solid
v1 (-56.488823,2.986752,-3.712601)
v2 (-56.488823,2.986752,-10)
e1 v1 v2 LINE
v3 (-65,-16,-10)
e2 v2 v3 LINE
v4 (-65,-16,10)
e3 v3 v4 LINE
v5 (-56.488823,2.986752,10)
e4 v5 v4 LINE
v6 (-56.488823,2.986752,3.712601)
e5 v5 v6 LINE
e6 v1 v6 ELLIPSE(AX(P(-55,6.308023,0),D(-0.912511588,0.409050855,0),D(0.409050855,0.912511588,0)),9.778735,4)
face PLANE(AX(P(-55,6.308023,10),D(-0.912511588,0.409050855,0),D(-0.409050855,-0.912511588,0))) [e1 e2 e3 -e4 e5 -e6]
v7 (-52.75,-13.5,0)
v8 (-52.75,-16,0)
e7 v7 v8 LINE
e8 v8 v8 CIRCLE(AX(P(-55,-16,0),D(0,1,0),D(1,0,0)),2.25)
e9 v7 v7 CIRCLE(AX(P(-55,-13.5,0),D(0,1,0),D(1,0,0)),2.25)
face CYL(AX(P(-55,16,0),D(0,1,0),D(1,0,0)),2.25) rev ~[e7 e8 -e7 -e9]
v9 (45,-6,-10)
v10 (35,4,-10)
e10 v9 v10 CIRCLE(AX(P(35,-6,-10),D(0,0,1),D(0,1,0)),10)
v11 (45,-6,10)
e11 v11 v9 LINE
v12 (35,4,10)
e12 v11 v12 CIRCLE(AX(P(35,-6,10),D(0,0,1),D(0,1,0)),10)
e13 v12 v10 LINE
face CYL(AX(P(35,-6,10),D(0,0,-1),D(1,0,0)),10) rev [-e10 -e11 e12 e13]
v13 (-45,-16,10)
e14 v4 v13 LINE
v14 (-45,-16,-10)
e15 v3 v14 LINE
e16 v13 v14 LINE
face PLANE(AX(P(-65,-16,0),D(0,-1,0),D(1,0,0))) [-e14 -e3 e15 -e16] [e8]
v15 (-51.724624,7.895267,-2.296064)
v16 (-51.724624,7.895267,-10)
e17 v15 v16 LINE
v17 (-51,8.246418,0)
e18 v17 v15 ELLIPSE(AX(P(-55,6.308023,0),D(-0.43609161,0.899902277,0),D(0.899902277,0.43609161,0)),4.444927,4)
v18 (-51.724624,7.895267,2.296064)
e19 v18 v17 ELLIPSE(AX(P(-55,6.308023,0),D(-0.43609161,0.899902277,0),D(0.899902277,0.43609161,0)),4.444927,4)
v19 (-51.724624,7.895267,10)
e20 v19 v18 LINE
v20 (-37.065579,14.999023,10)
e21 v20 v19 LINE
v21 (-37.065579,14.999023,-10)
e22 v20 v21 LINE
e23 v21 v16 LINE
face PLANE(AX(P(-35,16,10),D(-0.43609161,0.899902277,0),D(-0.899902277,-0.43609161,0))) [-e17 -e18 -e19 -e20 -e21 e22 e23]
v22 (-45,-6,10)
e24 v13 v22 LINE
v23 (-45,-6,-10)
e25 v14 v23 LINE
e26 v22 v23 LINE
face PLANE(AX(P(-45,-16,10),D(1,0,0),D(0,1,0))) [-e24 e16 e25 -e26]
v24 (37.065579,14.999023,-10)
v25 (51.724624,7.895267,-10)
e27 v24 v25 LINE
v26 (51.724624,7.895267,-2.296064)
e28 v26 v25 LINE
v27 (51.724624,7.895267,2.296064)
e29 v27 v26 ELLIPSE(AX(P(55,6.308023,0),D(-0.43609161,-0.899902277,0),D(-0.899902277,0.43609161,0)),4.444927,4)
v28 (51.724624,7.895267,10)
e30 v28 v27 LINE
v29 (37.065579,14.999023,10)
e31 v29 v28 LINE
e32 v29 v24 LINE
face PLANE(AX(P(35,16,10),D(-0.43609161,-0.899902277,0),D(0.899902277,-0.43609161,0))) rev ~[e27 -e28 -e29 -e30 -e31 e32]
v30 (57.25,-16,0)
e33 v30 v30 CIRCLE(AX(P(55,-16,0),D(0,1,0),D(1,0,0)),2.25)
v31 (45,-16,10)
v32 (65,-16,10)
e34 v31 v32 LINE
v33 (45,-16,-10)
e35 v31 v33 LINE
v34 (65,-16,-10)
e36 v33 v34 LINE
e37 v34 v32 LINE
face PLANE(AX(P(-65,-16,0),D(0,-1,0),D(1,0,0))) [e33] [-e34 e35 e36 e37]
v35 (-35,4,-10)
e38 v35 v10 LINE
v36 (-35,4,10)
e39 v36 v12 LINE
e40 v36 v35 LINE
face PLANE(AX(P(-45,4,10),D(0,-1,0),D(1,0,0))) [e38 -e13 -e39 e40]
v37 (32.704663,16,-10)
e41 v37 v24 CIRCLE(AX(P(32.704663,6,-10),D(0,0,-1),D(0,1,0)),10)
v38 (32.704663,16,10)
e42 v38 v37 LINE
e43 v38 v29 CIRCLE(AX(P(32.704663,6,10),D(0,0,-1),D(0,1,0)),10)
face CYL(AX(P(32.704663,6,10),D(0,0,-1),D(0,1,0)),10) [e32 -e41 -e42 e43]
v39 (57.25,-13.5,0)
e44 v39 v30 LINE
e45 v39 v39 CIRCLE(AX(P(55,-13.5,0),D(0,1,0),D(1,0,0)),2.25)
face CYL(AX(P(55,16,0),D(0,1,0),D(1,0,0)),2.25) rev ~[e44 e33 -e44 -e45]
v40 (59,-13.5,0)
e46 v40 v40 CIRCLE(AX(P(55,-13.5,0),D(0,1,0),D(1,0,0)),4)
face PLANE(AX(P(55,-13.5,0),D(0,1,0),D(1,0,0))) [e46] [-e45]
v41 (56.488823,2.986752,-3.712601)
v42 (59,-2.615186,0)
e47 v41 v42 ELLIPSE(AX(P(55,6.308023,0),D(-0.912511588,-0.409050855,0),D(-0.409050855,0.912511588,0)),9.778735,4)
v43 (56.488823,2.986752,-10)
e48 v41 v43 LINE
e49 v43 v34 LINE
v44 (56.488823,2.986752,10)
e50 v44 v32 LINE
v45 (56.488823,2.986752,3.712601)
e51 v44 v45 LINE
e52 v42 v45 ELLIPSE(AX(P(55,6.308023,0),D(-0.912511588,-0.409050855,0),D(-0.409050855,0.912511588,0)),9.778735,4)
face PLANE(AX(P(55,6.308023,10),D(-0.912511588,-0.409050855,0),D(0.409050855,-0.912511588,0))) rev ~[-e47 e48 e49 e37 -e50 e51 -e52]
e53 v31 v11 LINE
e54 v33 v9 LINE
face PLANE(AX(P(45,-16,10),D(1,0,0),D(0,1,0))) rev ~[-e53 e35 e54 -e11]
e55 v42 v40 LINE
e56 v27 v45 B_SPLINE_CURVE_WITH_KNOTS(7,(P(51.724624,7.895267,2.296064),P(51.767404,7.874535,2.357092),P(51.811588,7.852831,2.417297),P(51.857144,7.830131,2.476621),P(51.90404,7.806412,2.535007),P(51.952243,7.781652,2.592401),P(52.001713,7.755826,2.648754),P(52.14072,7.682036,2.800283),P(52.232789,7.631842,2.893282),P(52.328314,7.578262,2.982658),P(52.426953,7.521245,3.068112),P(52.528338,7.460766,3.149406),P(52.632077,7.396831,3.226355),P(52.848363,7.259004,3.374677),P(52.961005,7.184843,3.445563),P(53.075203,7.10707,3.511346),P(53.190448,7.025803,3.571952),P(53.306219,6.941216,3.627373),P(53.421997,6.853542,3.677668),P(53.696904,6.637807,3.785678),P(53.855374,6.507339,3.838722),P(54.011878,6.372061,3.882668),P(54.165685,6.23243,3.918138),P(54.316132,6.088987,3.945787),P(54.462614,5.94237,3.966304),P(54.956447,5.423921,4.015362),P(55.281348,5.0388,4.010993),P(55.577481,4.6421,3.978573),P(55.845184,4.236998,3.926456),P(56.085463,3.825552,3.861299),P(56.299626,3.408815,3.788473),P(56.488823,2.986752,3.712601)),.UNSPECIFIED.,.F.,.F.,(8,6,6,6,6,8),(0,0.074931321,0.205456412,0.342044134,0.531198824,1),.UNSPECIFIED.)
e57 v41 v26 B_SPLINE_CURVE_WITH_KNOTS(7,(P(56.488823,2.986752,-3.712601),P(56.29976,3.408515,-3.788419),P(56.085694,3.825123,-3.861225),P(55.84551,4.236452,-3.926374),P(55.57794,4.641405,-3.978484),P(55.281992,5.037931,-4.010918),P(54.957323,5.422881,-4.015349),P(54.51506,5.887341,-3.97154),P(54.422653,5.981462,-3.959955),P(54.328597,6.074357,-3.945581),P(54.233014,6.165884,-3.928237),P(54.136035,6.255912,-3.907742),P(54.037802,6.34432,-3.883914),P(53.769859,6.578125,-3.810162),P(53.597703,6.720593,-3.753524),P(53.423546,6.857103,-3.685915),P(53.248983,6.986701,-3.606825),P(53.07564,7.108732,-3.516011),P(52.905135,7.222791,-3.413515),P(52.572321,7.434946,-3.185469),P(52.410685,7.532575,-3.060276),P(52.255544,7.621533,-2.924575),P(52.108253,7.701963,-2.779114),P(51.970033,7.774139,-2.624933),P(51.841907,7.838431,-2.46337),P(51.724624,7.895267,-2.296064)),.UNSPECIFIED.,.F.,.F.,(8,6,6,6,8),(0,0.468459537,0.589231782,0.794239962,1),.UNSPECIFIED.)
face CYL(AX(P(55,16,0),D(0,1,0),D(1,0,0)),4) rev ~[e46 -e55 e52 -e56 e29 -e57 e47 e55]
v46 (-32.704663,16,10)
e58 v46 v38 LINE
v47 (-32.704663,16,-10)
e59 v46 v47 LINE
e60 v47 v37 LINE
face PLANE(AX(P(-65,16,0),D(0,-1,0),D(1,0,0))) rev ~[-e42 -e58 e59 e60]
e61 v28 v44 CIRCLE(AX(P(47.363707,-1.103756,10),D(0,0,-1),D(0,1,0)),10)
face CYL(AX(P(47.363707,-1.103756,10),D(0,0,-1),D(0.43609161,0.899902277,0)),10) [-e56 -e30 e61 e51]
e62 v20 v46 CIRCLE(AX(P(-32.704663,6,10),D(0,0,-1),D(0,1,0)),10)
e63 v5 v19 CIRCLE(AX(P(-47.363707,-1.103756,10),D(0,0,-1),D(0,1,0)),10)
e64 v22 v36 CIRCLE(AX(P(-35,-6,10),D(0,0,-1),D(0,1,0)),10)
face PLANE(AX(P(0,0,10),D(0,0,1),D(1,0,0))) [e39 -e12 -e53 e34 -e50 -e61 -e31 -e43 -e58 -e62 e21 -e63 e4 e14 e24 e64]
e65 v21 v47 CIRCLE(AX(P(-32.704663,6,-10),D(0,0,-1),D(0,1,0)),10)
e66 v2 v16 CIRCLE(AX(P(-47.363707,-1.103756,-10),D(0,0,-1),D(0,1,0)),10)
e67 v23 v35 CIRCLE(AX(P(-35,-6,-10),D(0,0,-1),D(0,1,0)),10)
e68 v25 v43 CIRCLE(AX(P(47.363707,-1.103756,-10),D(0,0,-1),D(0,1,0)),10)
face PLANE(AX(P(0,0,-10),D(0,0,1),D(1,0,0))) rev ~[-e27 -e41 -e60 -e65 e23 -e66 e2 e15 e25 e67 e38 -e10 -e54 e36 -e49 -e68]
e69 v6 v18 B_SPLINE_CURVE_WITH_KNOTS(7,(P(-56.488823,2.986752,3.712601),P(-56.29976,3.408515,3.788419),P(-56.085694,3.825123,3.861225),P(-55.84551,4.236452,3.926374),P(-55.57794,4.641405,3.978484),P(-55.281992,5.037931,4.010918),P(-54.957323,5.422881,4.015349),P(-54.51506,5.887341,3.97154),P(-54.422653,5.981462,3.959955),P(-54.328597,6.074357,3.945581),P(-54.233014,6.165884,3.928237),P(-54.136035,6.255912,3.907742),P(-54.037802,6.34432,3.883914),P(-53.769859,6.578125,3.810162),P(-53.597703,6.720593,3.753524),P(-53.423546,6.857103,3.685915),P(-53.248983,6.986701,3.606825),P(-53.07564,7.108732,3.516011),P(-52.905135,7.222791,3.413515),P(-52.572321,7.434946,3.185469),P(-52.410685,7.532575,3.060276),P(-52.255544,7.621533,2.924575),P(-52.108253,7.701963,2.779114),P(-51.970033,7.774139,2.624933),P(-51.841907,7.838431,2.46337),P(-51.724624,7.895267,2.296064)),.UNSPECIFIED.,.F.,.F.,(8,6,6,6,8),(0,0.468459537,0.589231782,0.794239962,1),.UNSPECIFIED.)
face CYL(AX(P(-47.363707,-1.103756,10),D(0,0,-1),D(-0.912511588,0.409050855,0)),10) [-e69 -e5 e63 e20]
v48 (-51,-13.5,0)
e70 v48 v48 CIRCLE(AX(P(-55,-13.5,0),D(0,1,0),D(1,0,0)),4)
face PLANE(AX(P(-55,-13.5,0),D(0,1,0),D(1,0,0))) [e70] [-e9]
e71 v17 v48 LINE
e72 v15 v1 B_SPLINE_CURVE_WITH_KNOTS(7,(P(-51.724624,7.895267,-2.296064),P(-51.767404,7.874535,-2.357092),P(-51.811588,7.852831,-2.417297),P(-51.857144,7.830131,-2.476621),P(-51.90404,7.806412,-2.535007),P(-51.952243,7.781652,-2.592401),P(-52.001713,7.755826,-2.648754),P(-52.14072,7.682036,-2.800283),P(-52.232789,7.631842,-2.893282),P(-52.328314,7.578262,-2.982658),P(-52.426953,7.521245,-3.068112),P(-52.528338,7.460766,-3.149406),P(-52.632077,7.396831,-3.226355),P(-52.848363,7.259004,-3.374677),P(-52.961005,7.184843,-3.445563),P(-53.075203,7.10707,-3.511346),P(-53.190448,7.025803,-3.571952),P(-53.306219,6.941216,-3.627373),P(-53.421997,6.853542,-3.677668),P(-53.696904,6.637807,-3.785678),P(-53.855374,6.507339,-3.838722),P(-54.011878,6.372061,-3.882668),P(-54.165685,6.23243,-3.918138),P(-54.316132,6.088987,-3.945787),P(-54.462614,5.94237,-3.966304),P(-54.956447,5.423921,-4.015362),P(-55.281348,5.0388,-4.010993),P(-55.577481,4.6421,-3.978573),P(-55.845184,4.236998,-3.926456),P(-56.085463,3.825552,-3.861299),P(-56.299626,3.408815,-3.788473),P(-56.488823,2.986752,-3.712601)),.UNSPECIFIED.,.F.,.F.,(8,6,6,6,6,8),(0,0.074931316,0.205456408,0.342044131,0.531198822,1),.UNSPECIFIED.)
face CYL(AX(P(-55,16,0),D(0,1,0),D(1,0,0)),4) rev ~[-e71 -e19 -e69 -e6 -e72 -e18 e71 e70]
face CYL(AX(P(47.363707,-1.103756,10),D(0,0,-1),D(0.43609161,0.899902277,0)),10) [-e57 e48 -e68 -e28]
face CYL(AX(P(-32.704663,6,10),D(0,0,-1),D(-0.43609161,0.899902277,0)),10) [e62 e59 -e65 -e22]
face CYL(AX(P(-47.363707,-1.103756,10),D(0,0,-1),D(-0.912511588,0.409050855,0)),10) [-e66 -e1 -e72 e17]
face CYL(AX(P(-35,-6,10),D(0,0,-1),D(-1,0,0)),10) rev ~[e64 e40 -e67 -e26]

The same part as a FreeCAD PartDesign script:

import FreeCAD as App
import Part
import Sketcher

V = App.Vector
Q = App.Units.Quantity


def edges_at(feature, points):
    """Names of the edges that pass closest to the given points."""
    edges = feature.Shape.Edges
    near = lambda p: min(range(len(edges)), key=lambda i: edges[i].distToShape(Part.Vertex(*p))[0])
    return sorted({f"Edge{near(p) + 1}" for p in points})

doc = App.newDocument("Part")
params = doc.addObject("Spreadsheet::Sheet", "Params")
for row, (alias, value) in enumerate([
    ("sketch1_width", "130 mm"),
    ("sketch1_height", "32 mm"),
    ("pad1_length", "10 mm"),
    ("pad1_length2", "10 mm"),
    ("sketch2_width", "30 mm"),
    ("sketch2_width2", "90 mm"),
    ("sketch2_height", "32 mm"),
    ("sketch2_height2", "20 mm"),
    ("fillet_radius", "10 mm"),
    ("sketch3_diameter", "8 mm"),
    ("pocket2_length", "29.5 mm"),
    ("sketch4_diameter", "4.5 mm"),
], start=1):
    params.set(f"A{row}", alias)
    params.set(f"B{row}", "=" + value)
    params.setAlias(f"B{row}", alias)

body = doc.addObject("PartDesign::Body", "Body")

# Sketch on XY plane
sketch1 = body.newObject("Sketcher::SketchObject", "Sketch")
sketch1.AttachmentSupport = (doc.getObject("XY_Plane"), [""])
sketch1.MapMode = "FlatFace"
sketch1.addGeometry(Part.LineSegment(V(-65, 16, 0), V(-65, -16, 0)), False)
sketch1.addGeometry(Part.LineSegment(V(-65, -16, 0), V(65, -16, 0)), False)
sketch1.addGeometry(Part.LineSegment(V(65, -16, 0), V(65, 16, 0)), False)
sketch1.addGeometry(Part.LineSegment(V(65, 16, 0), V(-65, 16, 0)), False)
sketch1.addConstraint(Sketcher.Constraint("Coincident", 0, 2, 1, 1))
sketch1.addConstraint(Sketcher.Constraint("Coincident", 1, 2, 2, 1))
sketch1.addConstraint(Sketcher.Constraint("Coincident", 2, 2, 3, 1))
sketch1.addConstraint(Sketcher.Constraint("Coincident", 3, 2, 0, 1))
sketch1.addConstraint(Sketcher.Constraint("Vertical", 0))
sketch1.addConstraint(Sketcher.Constraint("Horizontal", 1))
sketch1.addConstraint(Sketcher.Constraint("Vertical", 2))
sketch1.addConstraint(Sketcher.Constraint("Horizontal", 3))
sketch1.addConstraint(Sketcher.Constraint("Symmetric", 0, 2, 2, 2, -1, 1))
sketch1.addConstraint(Sketcher.Constraint("DistanceX", 1, 1, 1, 2, Q("130 mm")))
sketch1.addConstraint(Sketcher.Constraint("DistanceY", 0, 2, 0, 1, Q("32 mm")))
sketch1.setExpression("Constraints[9]", "Params.sketch1_width")
sketch1.setExpression("Constraints[10]", "Params.sketch1_height")
pad1 = body.newObject("PartDesign::Pad", "Pad")
pad1.Profile = sketch1
pad1.Type = "TwoLengths"
pad1.setExpression("Length", "Params.pad1_length")
pad1.setExpression("Length2", "Params.pad1_length2")

# Sketch on XY plane
sketch2 = body.newObject("Sketcher::SketchObject", "Sketch001")
sketch2.AttachmentSupport = (doc.getObject("XY_Plane"), [""])
sketch2.MapMode = "FlatFace"
sketch2.AttachmentOffset = App.Placement(V(0, 0, 10), App.Rotation())
sketch2.addGeometry(Part.LineSegment(V(35, 16, 0), V(55, 6, 0)), False)
sketch2.addGeometry(Part.LineSegment(V(55, 6, 0), V(65, -16, 0)), False)
sketch2.addGeometry(Part.LineSegment(V(65, -16, 0), V(65, 16, 0)), False)
sketch2.addGeometry(Part.LineSegment(V(65, 16, 0), V(35, 16, 0)), False)
sketch2.addGeometry(Part.LineSegment(V(-65, 16, 0), V(-65, -16, 0)), False)
sketch2.addGeometry(Part.LineSegment(V(-65, -16, 0), V(-55, 6, 0)), False)
sketch2.addGeometry(Part.LineSegment(V(-55, 6, 0), V(-35, 16, 0)), False)
sketch2.addGeometry(Part.LineSegment(V(-35, 16, 0), V(-65, 16, 0)), False)
sketch2.addGeometry(Part.LineSegment(V(-45, 4, 0), V(-45, -16, 0)), False)
sketch2.addGeometry(Part.LineSegment(V(-45, -16, 0), V(45, -16, 0)), False)
sketch2.addGeometry(Part.LineSegment(V(45, -16, 0), V(45, 4, 0)), False)
sketch2.addGeometry(Part.LineSegment(V(45, 4, 0), V(-45, 4, 0)), False)
sketch2.addConstraint(Sketcher.Constraint("Coincident", 0, 2, 1, 1))
sketch2.addConstraint(Sketcher.Constraint("Coincident", 1, 2, 2, 1))
sketch2.addConstraint(Sketcher.Constraint("Coincident", 2, 2, 3, 1))
sketch2.addConstraint(Sketcher.Constraint("Coincident", 3, 2, 0, 1))
sketch2.addConstraint(Sketcher.Constraint("Coincident", 4, 2, 5, 1))
sketch2.addConstraint(Sketcher.Constraint("Coincident", 5, 2, 6, 1))
sketch2.addConstraint(Sketcher.Constraint("Coincident", 6, 2, 7, 1))
sketch2.addConstraint(Sketcher.Constraint("Coincident", 7, 2, 4, 1))
sketch2.addConstraint(Sketcher.Constraint("Coincident", 8, 2, 9, 1))
sketch2.addConstraint(Sketcher.Constraint("Coincident", 9, 2, 10, 1))
sketch2.addConstraint(Sketcher.Constraint("Coincident", 10, 2, 11, 1))
sketch2.addConstraint(Sketcher.Constraint("Coincident", 11, 2, 8, 1))
sketch2.addConstraint(Sketcher.Constraint("Vertical", 2))
sketch2.addConstraint(Sketcher.Constraint("Horizontal", 3))
sketch2.addConstraint(Sketcher.Constraint("Vertical", 4))
sketch2.addConstraint(Sketcher.Constraint("Horizontal", 7))
sketch2.addConstraint(Sketcher.Constraint("Vertical", 8))
sketch2.addConstraint(Sketcher.Constraint("Horizontal", 9))
sketch2.addConstraint(Sketcher.Constraint("Vertical", 10))
sketch2.addConstraint(Sketcher.Constraint("Horizontal", 11))
sketch2.addConstraint(Sketcher.Constraint("Symmetric", 2, 2, 4, 2, -1, 1))
sketch2.addConstraint(Sketcher.Constraint("Symmetric", 0, 2, 5, 2, -2))
sketch2.addConstraint(Sketcher.Constraint("Symmetric", 3, 2, 6, 2, -2))
sketch2.addConstraint(Sketcher.Constraint("Horizontal", 1, 2, 4, 2))
sketch2.addConstraint(Sketcher.Constraint("Horizontal", 4, 2, 8, 2))
sketch2.addConstraint(Sketcher.Constraint("DistanceX", 3, 2, 3, 1, Q("30 mm")))
sketch2.addConstraint(Sketcher.Constraint("DistanceX", 9, 1, 9, 2, Q("90 mm")))
sketch2.addConstraint(Sketcher.Constraint("DistanceY", 2, 1, 2, 2, Q("32 mm")))
sketch2.addConstraint(Sketcher.Constraint("DistanceY", 8, 2, 8, 1, Q("20 mm")))
sketch2.addConstraint(Sketcher.Constraint("DistanceX", -1, 1, 0, 2, Q("55 mm")))
sketch2.addConstraint(Sketcher.Constraint("DistanceX", -1, 1, 1, 2, Q("65 mm")))
sketch2.addConstraint(Sketcher.Constraint("DistanceX", 8, 2, -1, 1, Q("45 mm")))
sketch2.addConstraint(Sketcher.Constraint("Distance", 1, Q("24.446838 mm")))
sketch2.setExpression("Constraints[25]", "Params.sketch2_width")
sketch2.setExpression("Constraints[26]", "Params.sketch2_width2")
sketch2.setExpression("Constraints[27]", "Params.sketch2_height")
sketch2.setExpression("Constraints[28]", "Params.sketch2_height2")
pocket1 = body.newObject("PartDesign::Pocket", "Pocket")
pocket1.Profile = sketch2
pocket1.Type = "ThroughAll"
doc.recompute()

fillet = body.newObject("PartDesign::Fillet", "Fillet")
fillet.Base = (pocket1, edges_at(pocket1, [
    (-55, 6.308, 0),
    (-35, 16, 0),
    (45, 4, 0),
    (-45, 4, 0),
    (35, 16, 0),
    (55, 6.308, 0),
]))
fillet.setExpression("Radius", "Params.fillet_radius")

# Sketch on XZ plane
sketch3 = body.newObject("Sketcher::SketchObject", "Sketch002")
sketch3.AttachmentSupport = (doc.getObject("XZ_Plane"), [""])
sketch3.MapMode = "FlatFace"
sketch3.AttachmentOffset = App.Placement(V(0, 0, -16), App.Rotation())
sketch3.addGeometry(Part.Circle(V(-55, 0, 0), V(0, 0, 1), 4), False)
sketch3.addGeometry(Part.Circle(V(55, 0, 0), V(0, 0, 1), 4), False)
sketch3.addConstraint(Sketcher.Constraint("Equal", 0, 1))
sketch3.addConstraint(Sketcher.Constraint("Symmetric", 0, 3, 1, 3, -1, 1))
sketch3.addConstraint(Sketcher.Constraint("PointOnObject", 0, 3, -1))
sketch3.addConstraint(Sketcher.Constraint("Diameter", 0, Q("8 mm")))
sketch3.addConstraint(Sketcher.Constraint("DistanceX", 0, 3, -1, 1, Q("55 mm")))
sketch3.setExpression("Constraints[3]", "Params.sketch3_diameter")
pocket2 = body.newObject("PartDesign::Pocket", "Pocket001")
pocket2.Profile = sketch3
pocket2.setExpression("Length", "Params.pocket2_length")
pocket2.Reversed = True

# Sketch on XZ plane
sketch4 = body.newObject("Sketcher::SketchObject", "Sketch003")
sketch4.AttachmentSupport = (doc.getObject("XZ_Plane"), [""])
sketch4.MapMode = "FlatFace"
sketch4.AttachmentOffset = App.Placement(V(0, 0, -16), App.Rotation())
sketch4.addGeometry(Part.Circle(V(-55, 0, 0), V(0, 0, 1), 2.2), False)
sketch4.addGeometry(Part.Circle(V(55, 0, 0), V(0, 0, 1), 2.2), False)
sketch4.addConstraint(Sketcher.Constraint("Equal", 0, 1))
sketch4.addConstraint(Sketcher.Constraint("Symmetric", 0, 3, 1, 3, -1, 1))
sketch4.addConstraint(Sketcher.Constraint("PointOnObject", 0, 3, -1))
sketch4.addConstraint(Sketcher.Constraint("Diameter", 0, Q("4.5 mm")))
sketch4.addConstraint(Sketcher.Constraint("DistanceX", 0, 3, -1, 1, Q("55 mm")))
sketch4.setExpression("Constraints[3]", "Params.sketch4_diameter")
pocket3 = body.newObject("PartDesign::Pocket", "Pocket002")
pocket3.Profile = sketch4
pocket3.Type = "ThroughAll"
pocket3.Reversed = True

doc.recompute()
